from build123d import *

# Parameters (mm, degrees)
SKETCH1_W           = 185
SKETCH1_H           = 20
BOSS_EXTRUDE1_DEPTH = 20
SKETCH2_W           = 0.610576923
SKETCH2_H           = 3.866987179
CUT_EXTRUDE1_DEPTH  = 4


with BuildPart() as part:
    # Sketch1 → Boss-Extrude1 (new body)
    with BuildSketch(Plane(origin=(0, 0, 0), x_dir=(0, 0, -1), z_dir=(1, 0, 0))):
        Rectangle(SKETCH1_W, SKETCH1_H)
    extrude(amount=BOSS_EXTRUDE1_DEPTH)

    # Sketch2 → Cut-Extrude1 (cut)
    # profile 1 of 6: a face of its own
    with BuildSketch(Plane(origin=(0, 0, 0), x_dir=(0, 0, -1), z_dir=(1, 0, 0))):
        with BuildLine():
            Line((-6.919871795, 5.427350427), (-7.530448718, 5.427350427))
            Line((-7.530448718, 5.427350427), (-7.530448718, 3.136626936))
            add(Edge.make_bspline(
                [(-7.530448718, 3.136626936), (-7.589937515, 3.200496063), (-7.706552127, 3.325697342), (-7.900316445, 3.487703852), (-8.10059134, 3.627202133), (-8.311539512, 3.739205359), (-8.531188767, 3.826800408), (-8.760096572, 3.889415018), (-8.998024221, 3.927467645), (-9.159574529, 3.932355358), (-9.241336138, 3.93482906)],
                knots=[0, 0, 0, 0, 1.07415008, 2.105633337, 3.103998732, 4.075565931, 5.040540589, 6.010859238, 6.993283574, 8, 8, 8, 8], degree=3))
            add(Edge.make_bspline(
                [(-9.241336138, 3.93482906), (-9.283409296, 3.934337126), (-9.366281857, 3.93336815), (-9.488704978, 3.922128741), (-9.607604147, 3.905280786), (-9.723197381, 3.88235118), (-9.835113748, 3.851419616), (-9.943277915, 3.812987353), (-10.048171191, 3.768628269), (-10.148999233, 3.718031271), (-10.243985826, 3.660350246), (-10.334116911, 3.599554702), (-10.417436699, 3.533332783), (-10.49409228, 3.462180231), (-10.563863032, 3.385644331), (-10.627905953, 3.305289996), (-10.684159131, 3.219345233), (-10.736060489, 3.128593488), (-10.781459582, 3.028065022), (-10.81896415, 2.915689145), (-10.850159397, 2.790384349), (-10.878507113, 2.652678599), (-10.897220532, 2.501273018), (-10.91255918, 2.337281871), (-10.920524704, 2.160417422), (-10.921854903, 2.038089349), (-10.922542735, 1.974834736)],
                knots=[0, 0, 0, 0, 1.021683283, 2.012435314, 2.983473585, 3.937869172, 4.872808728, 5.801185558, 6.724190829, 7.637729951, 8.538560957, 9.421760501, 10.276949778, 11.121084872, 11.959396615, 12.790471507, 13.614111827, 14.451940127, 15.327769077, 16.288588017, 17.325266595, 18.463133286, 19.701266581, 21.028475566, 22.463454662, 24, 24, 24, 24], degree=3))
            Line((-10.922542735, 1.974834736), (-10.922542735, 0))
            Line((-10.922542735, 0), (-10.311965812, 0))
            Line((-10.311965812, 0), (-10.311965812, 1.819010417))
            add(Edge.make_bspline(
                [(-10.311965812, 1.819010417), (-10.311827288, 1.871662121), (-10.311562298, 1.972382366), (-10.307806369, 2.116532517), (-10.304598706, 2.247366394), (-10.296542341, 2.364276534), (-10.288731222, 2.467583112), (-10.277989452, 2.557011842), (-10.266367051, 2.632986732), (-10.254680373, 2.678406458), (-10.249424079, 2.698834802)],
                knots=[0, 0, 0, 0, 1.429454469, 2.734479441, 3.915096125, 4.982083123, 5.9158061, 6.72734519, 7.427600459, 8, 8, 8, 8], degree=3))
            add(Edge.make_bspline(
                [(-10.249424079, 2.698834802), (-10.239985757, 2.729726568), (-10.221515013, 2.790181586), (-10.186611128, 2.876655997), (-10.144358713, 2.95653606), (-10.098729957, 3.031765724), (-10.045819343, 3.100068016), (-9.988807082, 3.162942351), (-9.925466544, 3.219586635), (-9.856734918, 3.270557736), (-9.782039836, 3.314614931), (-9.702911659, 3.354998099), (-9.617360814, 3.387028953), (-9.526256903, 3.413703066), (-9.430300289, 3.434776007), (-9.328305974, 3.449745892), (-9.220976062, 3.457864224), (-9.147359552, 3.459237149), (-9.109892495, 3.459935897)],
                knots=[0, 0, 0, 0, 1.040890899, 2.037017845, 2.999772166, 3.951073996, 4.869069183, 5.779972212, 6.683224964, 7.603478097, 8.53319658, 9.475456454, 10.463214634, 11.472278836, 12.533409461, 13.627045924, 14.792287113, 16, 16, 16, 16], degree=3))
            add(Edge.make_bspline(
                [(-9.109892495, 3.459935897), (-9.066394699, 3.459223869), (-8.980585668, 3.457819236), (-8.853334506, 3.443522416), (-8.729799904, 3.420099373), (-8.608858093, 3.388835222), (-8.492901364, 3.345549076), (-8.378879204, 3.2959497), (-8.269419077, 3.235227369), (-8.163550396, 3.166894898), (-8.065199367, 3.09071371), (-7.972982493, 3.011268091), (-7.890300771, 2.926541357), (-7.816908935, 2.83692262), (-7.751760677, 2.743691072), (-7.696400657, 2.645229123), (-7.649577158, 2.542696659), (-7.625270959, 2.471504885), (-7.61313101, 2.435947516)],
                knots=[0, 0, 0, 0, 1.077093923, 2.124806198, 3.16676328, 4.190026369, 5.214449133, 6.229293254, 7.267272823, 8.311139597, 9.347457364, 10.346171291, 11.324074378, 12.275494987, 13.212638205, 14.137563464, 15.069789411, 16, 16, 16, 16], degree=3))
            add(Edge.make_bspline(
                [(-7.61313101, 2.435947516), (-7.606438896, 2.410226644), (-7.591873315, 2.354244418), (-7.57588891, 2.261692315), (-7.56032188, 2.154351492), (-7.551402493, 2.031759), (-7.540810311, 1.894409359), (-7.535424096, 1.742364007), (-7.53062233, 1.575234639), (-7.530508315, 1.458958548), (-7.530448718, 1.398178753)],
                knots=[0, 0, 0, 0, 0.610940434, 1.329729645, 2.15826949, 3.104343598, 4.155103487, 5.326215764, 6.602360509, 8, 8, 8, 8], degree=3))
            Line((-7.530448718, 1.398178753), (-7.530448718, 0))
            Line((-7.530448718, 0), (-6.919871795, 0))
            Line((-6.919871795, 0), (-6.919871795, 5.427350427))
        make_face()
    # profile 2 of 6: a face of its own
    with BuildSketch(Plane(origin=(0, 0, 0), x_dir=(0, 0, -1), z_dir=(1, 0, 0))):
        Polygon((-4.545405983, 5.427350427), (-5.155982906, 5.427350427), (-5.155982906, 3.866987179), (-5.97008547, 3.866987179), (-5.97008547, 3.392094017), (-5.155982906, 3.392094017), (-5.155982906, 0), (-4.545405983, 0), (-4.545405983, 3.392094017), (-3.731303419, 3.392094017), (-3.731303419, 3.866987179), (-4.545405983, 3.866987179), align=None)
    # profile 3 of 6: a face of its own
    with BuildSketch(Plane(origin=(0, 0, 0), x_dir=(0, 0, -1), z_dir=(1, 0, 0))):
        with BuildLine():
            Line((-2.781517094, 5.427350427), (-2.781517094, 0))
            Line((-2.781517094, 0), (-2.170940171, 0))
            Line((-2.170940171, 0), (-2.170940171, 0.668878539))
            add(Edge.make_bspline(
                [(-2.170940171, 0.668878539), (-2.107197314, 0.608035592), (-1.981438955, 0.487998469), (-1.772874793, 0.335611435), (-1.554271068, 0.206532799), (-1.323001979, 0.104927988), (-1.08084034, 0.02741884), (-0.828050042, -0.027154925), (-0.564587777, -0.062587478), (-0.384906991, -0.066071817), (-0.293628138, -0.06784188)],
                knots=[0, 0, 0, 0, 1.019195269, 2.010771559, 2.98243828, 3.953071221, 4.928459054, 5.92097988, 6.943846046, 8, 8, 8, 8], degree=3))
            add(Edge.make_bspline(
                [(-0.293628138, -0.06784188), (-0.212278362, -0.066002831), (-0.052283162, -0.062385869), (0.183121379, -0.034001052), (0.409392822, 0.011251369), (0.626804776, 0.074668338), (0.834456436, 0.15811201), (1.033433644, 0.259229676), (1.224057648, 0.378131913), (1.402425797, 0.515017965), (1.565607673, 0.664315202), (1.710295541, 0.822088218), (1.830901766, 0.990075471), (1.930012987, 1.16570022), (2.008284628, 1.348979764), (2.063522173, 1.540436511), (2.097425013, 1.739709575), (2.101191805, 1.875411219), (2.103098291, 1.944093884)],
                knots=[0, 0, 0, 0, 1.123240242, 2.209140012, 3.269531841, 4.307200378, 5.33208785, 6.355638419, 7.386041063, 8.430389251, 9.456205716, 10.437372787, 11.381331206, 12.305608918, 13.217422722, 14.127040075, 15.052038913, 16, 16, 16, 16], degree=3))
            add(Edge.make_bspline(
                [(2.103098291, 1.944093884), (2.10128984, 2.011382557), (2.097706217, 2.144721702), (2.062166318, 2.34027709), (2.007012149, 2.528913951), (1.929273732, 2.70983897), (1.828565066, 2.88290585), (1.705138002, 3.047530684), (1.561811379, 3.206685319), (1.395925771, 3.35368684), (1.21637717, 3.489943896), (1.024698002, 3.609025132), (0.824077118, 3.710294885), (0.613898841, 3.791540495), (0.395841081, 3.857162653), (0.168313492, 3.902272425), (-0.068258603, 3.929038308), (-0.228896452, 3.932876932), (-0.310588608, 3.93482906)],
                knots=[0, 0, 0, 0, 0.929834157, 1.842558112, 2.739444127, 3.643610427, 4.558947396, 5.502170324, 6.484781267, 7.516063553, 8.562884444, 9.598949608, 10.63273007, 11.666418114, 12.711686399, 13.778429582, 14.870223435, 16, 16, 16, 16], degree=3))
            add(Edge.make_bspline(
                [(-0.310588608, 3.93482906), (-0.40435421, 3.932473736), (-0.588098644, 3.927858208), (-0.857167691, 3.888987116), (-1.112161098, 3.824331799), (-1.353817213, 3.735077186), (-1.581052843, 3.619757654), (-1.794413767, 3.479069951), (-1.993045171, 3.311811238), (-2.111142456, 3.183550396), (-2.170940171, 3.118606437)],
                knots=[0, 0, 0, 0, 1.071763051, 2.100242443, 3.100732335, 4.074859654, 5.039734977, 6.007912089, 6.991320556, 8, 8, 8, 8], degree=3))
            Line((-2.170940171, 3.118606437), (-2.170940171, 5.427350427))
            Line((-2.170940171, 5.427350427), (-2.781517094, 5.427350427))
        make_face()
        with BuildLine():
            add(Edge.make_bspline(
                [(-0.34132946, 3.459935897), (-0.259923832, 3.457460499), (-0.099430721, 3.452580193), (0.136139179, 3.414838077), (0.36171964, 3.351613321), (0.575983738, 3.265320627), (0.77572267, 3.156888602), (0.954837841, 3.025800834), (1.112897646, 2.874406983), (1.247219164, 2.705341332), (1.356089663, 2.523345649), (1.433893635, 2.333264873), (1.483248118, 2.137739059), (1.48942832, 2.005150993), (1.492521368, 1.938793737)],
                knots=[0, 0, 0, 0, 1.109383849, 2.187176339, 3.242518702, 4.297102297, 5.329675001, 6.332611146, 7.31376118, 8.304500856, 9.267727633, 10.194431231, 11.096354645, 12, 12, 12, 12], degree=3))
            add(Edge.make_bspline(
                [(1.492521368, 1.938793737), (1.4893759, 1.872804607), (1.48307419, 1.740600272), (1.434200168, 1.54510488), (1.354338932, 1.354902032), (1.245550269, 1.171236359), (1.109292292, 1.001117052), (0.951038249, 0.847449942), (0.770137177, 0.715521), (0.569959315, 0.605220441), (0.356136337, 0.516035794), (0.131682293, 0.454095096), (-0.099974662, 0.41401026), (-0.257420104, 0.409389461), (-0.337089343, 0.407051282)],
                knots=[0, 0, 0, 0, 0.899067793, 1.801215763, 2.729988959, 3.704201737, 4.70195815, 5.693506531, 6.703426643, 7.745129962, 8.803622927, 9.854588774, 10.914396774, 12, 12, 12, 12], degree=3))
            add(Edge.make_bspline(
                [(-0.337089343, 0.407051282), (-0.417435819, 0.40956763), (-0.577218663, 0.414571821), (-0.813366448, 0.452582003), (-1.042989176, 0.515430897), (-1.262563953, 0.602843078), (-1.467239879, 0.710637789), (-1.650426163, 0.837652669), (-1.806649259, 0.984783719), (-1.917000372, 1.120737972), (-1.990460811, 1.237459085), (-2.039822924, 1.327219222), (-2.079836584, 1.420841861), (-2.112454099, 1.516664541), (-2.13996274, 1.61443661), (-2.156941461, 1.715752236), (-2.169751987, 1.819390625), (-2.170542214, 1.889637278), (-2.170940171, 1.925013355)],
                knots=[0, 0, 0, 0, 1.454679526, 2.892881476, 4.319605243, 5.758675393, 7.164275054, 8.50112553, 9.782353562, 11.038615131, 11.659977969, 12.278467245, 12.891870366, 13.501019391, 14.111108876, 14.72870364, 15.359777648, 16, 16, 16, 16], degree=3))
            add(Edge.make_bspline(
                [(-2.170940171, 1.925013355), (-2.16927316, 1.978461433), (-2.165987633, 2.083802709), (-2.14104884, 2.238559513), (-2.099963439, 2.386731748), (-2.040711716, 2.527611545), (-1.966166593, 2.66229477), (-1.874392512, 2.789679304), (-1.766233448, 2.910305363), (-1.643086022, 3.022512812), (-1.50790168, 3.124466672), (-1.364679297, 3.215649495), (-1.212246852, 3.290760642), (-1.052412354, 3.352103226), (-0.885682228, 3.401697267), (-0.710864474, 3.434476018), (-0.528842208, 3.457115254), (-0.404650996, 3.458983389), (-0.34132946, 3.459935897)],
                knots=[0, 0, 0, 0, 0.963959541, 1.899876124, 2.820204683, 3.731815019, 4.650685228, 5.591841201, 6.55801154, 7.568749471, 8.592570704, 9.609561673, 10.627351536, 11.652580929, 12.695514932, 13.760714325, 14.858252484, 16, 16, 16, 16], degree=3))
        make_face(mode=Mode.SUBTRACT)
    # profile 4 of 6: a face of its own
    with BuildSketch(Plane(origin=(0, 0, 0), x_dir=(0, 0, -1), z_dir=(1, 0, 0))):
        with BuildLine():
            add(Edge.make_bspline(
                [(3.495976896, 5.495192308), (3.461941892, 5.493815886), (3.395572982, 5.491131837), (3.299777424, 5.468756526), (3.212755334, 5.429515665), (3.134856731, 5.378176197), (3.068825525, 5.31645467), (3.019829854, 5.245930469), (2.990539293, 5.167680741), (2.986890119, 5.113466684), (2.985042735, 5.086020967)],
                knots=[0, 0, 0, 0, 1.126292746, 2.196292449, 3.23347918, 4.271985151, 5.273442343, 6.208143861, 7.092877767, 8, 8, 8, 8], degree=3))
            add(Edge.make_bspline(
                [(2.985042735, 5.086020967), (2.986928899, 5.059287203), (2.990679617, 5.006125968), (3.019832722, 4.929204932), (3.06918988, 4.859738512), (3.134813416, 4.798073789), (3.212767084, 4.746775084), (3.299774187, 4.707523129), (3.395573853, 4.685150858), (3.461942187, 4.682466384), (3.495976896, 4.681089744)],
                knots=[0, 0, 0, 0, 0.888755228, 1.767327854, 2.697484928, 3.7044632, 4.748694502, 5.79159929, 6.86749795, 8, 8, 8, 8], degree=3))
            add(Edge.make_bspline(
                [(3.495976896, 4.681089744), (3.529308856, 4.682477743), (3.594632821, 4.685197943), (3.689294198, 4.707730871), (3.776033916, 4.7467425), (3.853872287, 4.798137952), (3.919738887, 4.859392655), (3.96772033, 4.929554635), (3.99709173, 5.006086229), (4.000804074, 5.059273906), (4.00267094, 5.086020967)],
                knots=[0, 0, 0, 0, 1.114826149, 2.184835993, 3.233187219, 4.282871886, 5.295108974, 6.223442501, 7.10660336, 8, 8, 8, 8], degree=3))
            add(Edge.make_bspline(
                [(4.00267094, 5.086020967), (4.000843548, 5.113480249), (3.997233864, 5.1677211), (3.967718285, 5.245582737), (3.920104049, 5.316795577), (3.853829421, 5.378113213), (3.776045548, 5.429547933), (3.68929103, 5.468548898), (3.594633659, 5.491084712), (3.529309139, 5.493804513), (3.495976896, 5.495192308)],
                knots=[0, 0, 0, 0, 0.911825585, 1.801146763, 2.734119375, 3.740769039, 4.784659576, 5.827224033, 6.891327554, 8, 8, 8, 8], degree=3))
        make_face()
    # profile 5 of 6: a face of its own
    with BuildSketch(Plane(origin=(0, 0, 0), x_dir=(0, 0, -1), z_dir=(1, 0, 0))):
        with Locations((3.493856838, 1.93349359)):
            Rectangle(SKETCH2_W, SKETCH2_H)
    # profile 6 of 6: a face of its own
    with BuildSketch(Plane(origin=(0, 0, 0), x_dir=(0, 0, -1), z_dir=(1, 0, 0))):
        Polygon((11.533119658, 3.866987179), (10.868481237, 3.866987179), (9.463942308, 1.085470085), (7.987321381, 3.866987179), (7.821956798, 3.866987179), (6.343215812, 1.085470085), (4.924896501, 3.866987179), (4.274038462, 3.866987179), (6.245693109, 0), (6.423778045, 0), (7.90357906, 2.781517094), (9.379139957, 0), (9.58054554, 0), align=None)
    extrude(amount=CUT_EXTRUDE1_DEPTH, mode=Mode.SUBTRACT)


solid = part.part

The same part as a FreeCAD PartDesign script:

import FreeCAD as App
import Part
import Sketcher

V = App.Vector
Q = App.Units.Quantity


def add_polygon(sketch, points):
    """Adds a closed chain of lines whose ends are joined by coincident constraints."""
    first, n = sketch.GeometryCount, len(points)
    for a, b in zip(points, points[1:] + points[:1]):
        sketch.addGeometry(Part.LineSegment(App.Vector(*a, 0), App.Vector(*b, 0)), False)
    for i in range(n):
        sketch.addConstraint(Sketcher.Constraint("Coincident", first + i, 2, first + (i + 1) % n, 1))

doc = App.newDocument("Part")
params = doc.addObject("Spreadsheet::Sheet", "Params")
for row, (alias, value) in enumerate([
    ("sketch1_width", "20 mm"),
    ("sketch1_height", "185 mm"),
    ("pad1_length", "20 mm"),
    ("pocket1_length", "4 mm"),
], start=1):
    params.set(f"A{row}", alias)
    params.set(f"B{row}", "=" + value)
    params.setAlias(f"B{row}", alias)

body = doc.addObject("PartDesign::Body", "Body")

sketch1 = body.newObject("Sketcher::SketchObject", "Sketch")
sketch1.AttachmentSupport = (doc.getObject("YZ_Plane"), [""])
sketch1.MapMode = "FlatFace"
add_polygon(sketch1, [(10, 92.5), (-10, 92.5), (-10, -92.5), (10, -92.5)])
sketch1.addConstraint(Sketcher.Constraint("Horizontal", 0))
sketch1.addConstraint(Sketcher.Constraint("Vertical", 1))
sketch1.addConstraint(Sketcher.Constraint("Horizontal", 2))
sketch1.addConstraint(Sketcher.Constraint("Vertical", 3))
sketch1.addConstraint(Sketcher.Constraint("Symmetric", 0, 2, 2, 2, -1, 1))
sketch1.addConstraint(Sketcher.Constraint("DistanceX", 0, 2, 0, 1, Q("20 mm")))
sketch1.addConstraint(Sketcher.Constraint("DistanceY", 1, 2, 1, 1, Q("185 mm")))
sketch1.setExpression("Constraints[9]", "Params.sketch1_width")
sketch1.setExpression("Constraints[10]", "Params.sketch1_height")
pad1 = body.newObject("PartDesign::Pad", "Pad")
pad1.Profile = sketch1
pad1.setExpression("Length", "Params.pad1_length")

sketch2 = body.newObject("Sketcher::SketchObject", "Sketch001")
sketch2.AttachmentSupport = (doc.getObject("YZ_Plane"), [""])
sketch2.MapMode = "FlatFace"
sketch2.addGeometry(Part.LineSegment(V(5.42735, 6.919872, 0), V(5.42735, 7.530449, 0)), False)
sketch2.addGeometry(Part.LineSegment(V(5.42735, 7.530449, 0), V(3.136627, 7.530449, 0)), False)
sketch2.addGeometry(Part.BSplineCurve([V(3.136627, 7.530449, 0), V(3.200496, 7.589938, 0), V(3.325697, 7.706552, 0), V(3.487704, 7.900316, 0), V(3.627202, 8.100591, 0), V(3.739205, 8.31154, 0), V(3.8268, 8.531189, 0), V(3.889415, 8.760097, 0), V(3.927468, 8.998024, 0), V(3.932355, 9.159575, 0), V(3.934829, 9.241336, 0)], [4, 1, 1, 1, 1, 1, 1, 1, 4], [0, 1.07415008, 2.105633337, 3.103998732, 4.075565931, 5.040540589, 6.010859238, 6.993283574, 8], False, 3, [1, 1, 1, 1, 1, 1, 1, 1, 1, 1, 1], False), False)
sketch2.addGeometry(Part.BSplineCurve([V(3.934829, 9.241336, 0), V(3.934337, 9.283409, 0), V(3.933368, 9.366282, 0), V(3.922129, 9.488705, 0), V(3.905281, 9.607604, 0), V(3.882351, 9.723197, 0), V(3.85142, 9.835114, 0), V(3.812987, 9.943278, 0), V(3.768628, 10.048171, 0), V(3.718031, 10.148999, 0), V(3.66035, 10.243986, 0), V(3.599555, 10.334117, 0), V(3.533333, 10.417437, 0), V(3.46218, 10.494092, 0), V(3.385644, 10.563863, 0), V(3.30529, 10.627906, 0), V(3.219345, 10.684159, 0), V(3.128593, 10.73606, 0), V(3.028065, 10.78146, 0), V(2.915689, 10.818964, 0), V(2.790384, 10.850159, 0), V(2.652679, 10.878507, 0), V(2.501273, 10.897221, 0), V(2.337282, 10.912559, 0), V(2.160417, 10.920525, 0), V(2.038089, 10.921855, 0), V(1.974835, 10.922543, 0)], [4, 1, 1, 1, 1, 1, 1, 1, 1, 1, 1, 1, 1, 1, 1, 1, 1, 1, 1, 1, 1, 1, 1, 1, 4], [0, 1.021683283, 2.012435314, 2.983473585, 3.937869172, 4.872808728, 5.801185558, 6.724190829, 7.637729951, 8.538560957, 9.421760501, 10.276949778, 11.121084872, 11.959396615, 12.790471507, 13.614111827, 14.451940127, 15.327769077, 16.288588017, 17.325266595, 18.463133286, 19.701266581, 21.028475566, 22.463454662, 24], False, 3, [1, 1, 1, 1, 1, 1, 1, 1, 1, 1, 1, 1, 1, 1, 1, 1, 1, 1, 1, 1, 1, 1, 1, 1, 1, 1, 1], False), False)
sketch2.addGeometry(Part.LineSegment(V(1.974835, 10.922543, 0), V(0, 10.922543, 0)), False)
sketch2.addGeometry(Part.LineSegment(V(0, 10.922543, 0), V(0, 10.311966, 0)), False)
sketch2.addGeometry(Part.LineSegment(V(0, 10.311966, 0), V(1.81901, 10.311966, 0)), False)
sketch2.addGeometry(Part.BSplineCurve([V(1.81901, 10.311966, 0), V(1.871662, 10.311827, 0), V(1.972382, 10.311562, 0), V(2.116533, 10.307806, 0), V(2.247366, 10.304599, 0), V(2.364277, 10.296542, 0), V(2.467583, 10.288731, 0), V(2.557012, 10.277989, 0), V(2.632987, 10.266367, 0), V(2.678406, 10.25468, 0), V(2.698835, 10.249424, 0)], [4, 1, 1, 1, 1, 1, 1, 1, 4], [0, 1.429454469, 2.734479441, 3.915096125, 4.982083123, 5.9158061, 6.72734519, 7.427600459, 8], False, 3, [1, 1, 1, 1, 1, 1, 1, 1, 1, 1, 1], False), False)
sketch2.addGeometry(Part.BSplineCurve([V(2.698835, 10.249424, 0), V(2.729727, 10.239986, 0), V(2.790182, 10.221515, 0), V(2.876656, 10.186611, 0), V(2.956536, 10.144359, 0), V(3.031766, 10.09873, 0), V(3.100068, 10.045819, 0), V(3.162942, 9.988807, 0), V(3.219587, 9.925467, 0), V(3.270558, 9.856735, 0), V(3.314615, 9.78204, 0), V(3.354998, 9.702912, 0), V(3.387029, 9.617361, 0), V(3.413703, 9.526257, 0), V(3.434776, 9.4303, 0), V(3.449746, 9.328306, 0), V(3.457864, 9.220976, 0), V(3.459237, 9.14736, 0), V(3.459936, 9.109892, 0)], [4, 1, 1, 1, 1, 1, 1, 1, 1, 1, 1, 1, 1, 1, 1, 1, 4], [0, 1.040890899, 2.037017845, 2.999772166, 3.951073996, 4.869069183, 5.779972212, 6.683224964, 7.603478097, 8.53319658, 9.475456454, 10.463214634, 11.472278836, 12.533409461, 13.627045924, 14.792287113, 16], False, 3, [1, 1, 1, 1, 1, 1, 1, 1, 1, 1, 1, 1, 1, 1, 1, 1, 1, 1, 1], False), False)
sketch2.addGeometry(Part.BSplineCurve([V(3.459936, 9.109892, 0), V(3.459224, 9.066395, 0), V(3.457819, 8.980586, 0), V(3.443522, 8.853335, 0), V(3.420099, 8.7298, 0), V(3.388835, 8.608858, 0), V(3.345549, 8.492901, 0), V(3.29595, 8.378879, 0), V(3.235227, 8.269419, 0), V(3.166895, 8.16355, 0), V(3.090714, 8.065199, 0), V(3.011268, 7.972982, 0), V(2.926541, 7.890301, 0), V(2.836923, 7.816909, 0), V(2.743691, 7.751761, 0), V(2.645229, 7.696401, 0), V(2.542697, 7.649577, 0), V(2.471505, 7.625271, 0), V(2.435948, 7.613131, 0)], [4, 1, 1, 1, 1, 1, 1, 1, 1, 1, 1, 1, 1, 1, 1, 1, 4], [0, 1.077093923, 2.124806198, 3.16676328, 4.190026369, 5.214449133, 6.229293254, 7.267272823, 8.311139597, 9.347457364, 10.346171291, 11.324074378, 12.275494987, 13.212638205, 14.137563464, 15.069789411, 16], False, 3, [1, 1, 1, 1, 1, 1, 1, 1, 1, 1, 1, 1, 1, 1, 1, 1, 1, 1, 1], False), False)
sketch2.addGeometry(Part.BSplineCurve([V(2.435948, 7.613131, 0), V(2.410227, 7.606439, 0), V(2.354244, 7.591873, 0), V(2.261692, 7.575889, 0), V(2.154351, 7.560322, 0), V(2.031759, 7.551402, 0), V(1.894409, 7.54081, 0), V(1.742364, 7.535424, 0), V(1.575235, 7.530622, 0), V(1.458959, 7.530508, 0), V(1.398179, 7.530449, 0)], [4, 1, 1, 1, 1, 1, 1, 1, 4], [0, 0.610940434, 1.329729645, 2.15826949, 3.104343598, 4.155103487, 5.326215764, 6.602360509, 8], False, 3, [1, 1, 1, 1, 1, 1, 1, 1, 1, 1, 1], False), False)
sketch2.addGeometry(Part.LineSegment(V(1.398179, 7.530449, 0), V(0, 7.530449, 0)), False)
sketch2.addGeometry(Part.LineSegment(V(0, 7.530449, 0), V(0, 6.919872, 0)), False)
sketch2.addGeometry(Part.LineSegment(V(0, 6.919872, 0), V(5.42735, 6.919872, 0)), False)
add_polygon(sketch2, [(5.42735, 4.545406), (5.42735, 5.155983), (3.866987, 5.155983), (3.866987, 5.970085), (3.392094, 5.970085), (3.392094, 5.155983), (0, 5.155983), (0, 4.545406), (3.392094, 4.545406), (3.392094, 3.731303), (3.866987, 3.731303), (3.866987, 4.545406)])
sketch2.addGeometry(Part.LineSegment(V(5.42735, 2.781517, 0), V(0, 2.781517, 0)), False)
sketch2.addGeometry(Part.LineSegment(V(0, 2.781517, 0), V(0, 2.17094, 0)), False)
sketch2.addGeometry(Part.LineSegment(V(0, 2.17094, 0), V(0.668879, 2.17094, 0)), False)
sketch2.addGeometry(Part.BSplineCurve([V(0.668879, 2.17094, 0), V(0.608036, 2.107197, 0), V(0.487998, 1.981439, 0), V(0.335611, 1.772875, 0), V(0.206533, 1.554271, 0), V(0.104928, 1.323002, 0), V(0.027419, 1.08084, 0), V(-0.027155, 0.82805, 0), V(-0.062587, 0.564588, 0), V(-0.066072, 0.384907, 0), V(-0.067842, 0.293628, 0)], [4, 1, 1, 1, 1, 1, 1, 1, 4], [0, 1.019195269, 2.010771559, 2.98243828, 3.953071221, 4.928459054, 5.92097988, 6.943846046, 8], False, 3, [1, 1, 1, 1, 1, 1, 1, 1, 1, 1, 1], False), False)
sketch2.addGeometry(Part.BSplineCurve([V(-0.067842, 0.293628, 0), V(-0.066003, 0.212278, 0), V(-0.062386, 0.052283, 0), V(-0.034001, -0.183121, 0), V(0.011251, -0.409393, 0), V(0.074668, -0.626805, 0), V(0.158112, -0.834456, 0), V(0.25923, -1.033434, 0), V(0.378132, -1.224058, 0), V(0.515018, -1.402426, 0), V(0.664315, -1.565608, 0), V(0.822088, -1.710296, 0), V(0.990075, -1.830902, 0), V(1.1657, -1.930013, 0), V(1.34898, -2.008285, 0), V(1.540437, -2.063522, 0), V(1.73971, -2.097425, 0), V(1.875411, -2.101192, 0), V(1.944094, -2.103098, 0)], [4, 1, 1, 1, 1, 1, 1, 1, 1, 1, 1, 1, 1, 1, 1, 1, 4], [0, 1.123240242, 2.209140012, 3.269531841, 4.307200378, 5.33208785, 6.355638419, 7.386041063, 8.430389251, 9.456205716, 10.437372787, 11.381331206, 12.305608918, 13.217422722, 14.127040075, 15.052038913, 16], False, 3, [1, 1, 1, 1, 1, 1, 1, 1, 1, 1, 1, 1, 1, 1, 1, 1, 1, 1, 1], False), False)
sketch2.addGeometry(Part.BSplineCurve([V(1.944094, -2.103098, 0), V(2.011383, -2.10129, 0), V(2.144722, -2.097706, 0), V(2.340277, -2.062166, 0), V(2.528914, -2.007012, 0), V(2.709839, -1.929274, 0), V(2.882906, -1.828565, 0), V(3.047531, -1.705138, 0), V(3.206685, -1.561811, 0), V(3.353687, -1.395926, 0), V(3.489944, -1.216377, 0), V(3.609025, -1.024698, 0), V(3.710295, -0.824077, 0), V(3.79154, -0.613899, 0), V(3.857163, -0.395841, 0), V(3.902272, -0.168313, 0), V(3.929038, 0.068259, 0), V(3.932877, 0.228896, 0), V(3.934829, 0.310589, 0)], [4, 1, 1, 1, 1, 1, 1, 1, 1, 1, 1, 1, 1, 1, 1, 1, 4], [0, 0.929834157, 1.842558112, 2.739444127, 3.643610427, 4.558947396, 5.502170324, 6.484781267, 7.516063553, 8.562884444, 9.598949608, 10.63273007, 11.666418114, 12.711686399, 13.778429582, 14.870223435, 16], False, 3, [1, 1, 1, 1, 1, 1, 1, 1, 1, 1, 1, 1, 1, 1, 1, 1, 1, 1, 1], False), False)
sketch2.addGeometry(Part.BSplineCurve([V(3.934829, 0.310589, 0), V(3.932474, 0.404354, 0), V(3.927858, 0.588099, 0), V(3.888987, 0.857168, 0), V(3.824332, 1.112161, 0), V(3.735077, 1.353817, 0), V(3.619758, 1.581053, 0), V(3.47907, 1.794414, 0), V(3.311811, 1.993045, 0), V(3.18355, 2.111142, 0), V(3.118606, 2.17094, 0)], [4, 1, 1, 1, 1, 1, 1, 1, 4], [0, 1.071763051, 2.100242443, 3.100732335, 4.074859654, 5.039734977, 6.007912089, 6.991320556, 8], False, 3, [1, 1, 1, 1, 1, 1, 1, 1, 1, 1, 1], False), False)
sketch2.addGeometry(Part.LineSegment(V(3.118606, 2.17094, 0), V(5.42735, 2.17094, 0)), False)
sketch2.addGeometry(Part.LineSegment(V(5.42735, 2.17094, 0), V(5.42735, 2.781517, 0)), False)
sketch2.addGeometry(Part.BSplineCurve([V(1.925013, 2.17094, 0), V(1.978461, 2.169273, 0), V(2.083803, 2.165988, 0), V(2.23856, 2.141049, 0), V(2.386732, 2.099963, 0), V(2.527612, 2.040712, 0), V(2.662295, 1.966167, 0), V(2.789679, 1.874393, 0), V(2.910305, 1.766233, 0), V(3.022513, 1.643086, 0), V(3.124467, 1.507902, 0), V(3.215649, 1.364679, 0), V(3.290761, 1.212247, 0), V(3.352103, 1.052412, 0), V(3.401697, 0.885682, 0), V(3.434476, 0.710864, 0), V(3.457115, 0.528842, 0), V(3.458983, 0.404651, 0), V(3.459936, 0.341329, 0)], [4, 1, 1, 1, 1, 1, 1, 1, 1, 1, 1, 1, 1, 1, 1, 1, 4], [0, 0.963959541, 1.899876124, 2.820204683, 3.731815019, 4.650685228, 5.591841201, 6.55801154, 7.568749471, 8.592570704, 9.609561673, 10.627351536, 11.652580929, 12.695514932, 13.760714325, 14.858252484, 16], False, 3, [1, 1, 1, 1, 1, 1, 1, 1, 1, 1, 1, 1, 1, 1, 1, 1, 1, 1, 1], False), False)
sketch2.addGeometry(Part.BSplineCurve([V(3.459936, 0.341329, 0), V(3.45746, 0.259924, 0), V(3.45258, 0.099431, 0), V(3.414838, -0.136139, 0), V(3.351613, -0.36172, 0), V(3.265321, -0.575984, 0), V(3.156889, -0.775723, 0), V(3.025801, -0.954838, 0), V(2.874407, -1.112898, 0), V(2.705341, -1.247219, 0), V(2.523346, -1.35609, 0), V(2.333265, -1.433894, 0), V(2.137739, -1.483248, 0), V(2.005151, -1.489428, 0), V(1.938794, -1.492521, 0)], [4, 1, 1, 1, 1, 1, 1, 1, 1, 1, 1, 1, 4], [0, 1.109383849, 2.187176339, 3.242518702, 4.297102297, 5.329675001, 6.332611146, 7.31376118, 8.304500856, 9.267727633, 10.194431231, 11.096354645, 12], False, 3, [1, 1, 1, 1, 1, 1, 1, 1, 1, 1, 1, 1, 1, 1, 1], False), False)
sketch2.addGeometry(Part.BSplineCurve([V(1.938794, -1.492521, 0), V(1.872805, -1.489376, 0), V(1.7406, -1.483074, 0), V(1.545105, -1.4342, 0), V(1.354902, -1.354339, 0), V(1.171236, -1.24555, 0), V(1.001117, -1.109292, 0), V(0.84745, -0.951038, 0), V(0.715521, -0.770137, 0), V(0.60522, -0.569959, 0), V(0.516036, -0.356136, 0), V(0.454095, -0.131682, 0), V(0.41401, 0.099975, 0), V(0.409389, 0.25742, 0), V(0.407051, 0.337089, 0)], [4, 1, 1, 1, 1, 1, 1, 1, 1, 1, 1, 1, 4], [0, 0.899067793, 1.801215763, 2.729988959, 3.704201737, 4.70195815, 5.693506531, 6.703426643, 7.745129962, 8.803622927, 9.854588774, 10.914396774, 12], False, 3, [1, 1, 1, 1, 1, 1, 1, 1, 1, 1, 1, 1, 1, 1, 1], False), False)
sketch2.addGeometry(Part.BSplineCurve([V(0.407051, 0.337089, 0), V(0.409568, 0.417436, 0), V(0.414572, 0.577219, 0), V(0.452582, 0.813366, 0), V(0.515431, 1.042989, 0), V(0.602843, 1.262564, 0), V(0.710638, 1.46724, 0), V(0.837653, 1.650426, 0), V(0.984784, 1.806649, 0), V(1.120738, 1.917, 0), V(1.237459, 1.990461, 0), V(1.327219, 2.039823, 0), V(1.420842, 2.079837, 0), V(1.516665, 2.112454, 0), V(1.614437, 2.139963, 0), V(1.715752, 2.156941, 0), V(1.819391, 2.169752, 0), V(1.889637, 2.170542, 0), V(1.925013, 2.17094, 0)], [4, 1, 1, 1, 1, 1, 1, 1, 1, 1, 1, 1, 1, 1, 1, 1, 4], [0, 1.454679526, 2.892881476, 4.319605243, 5.758675393, 7.164275054, 8.50112553, 9.782353562, 11.038615131, 11.659977969, 12.278467245, 12.891870366, 13.501019391, 14.111108876, 14.72870364, 15.359777648, 16], False, 3, [1, 1, 1, 1, 1, 1, 1, 1, 1, 1, 1, 1, 1, 1, 1, 1, 1, 1, 1], False), False)
sketch2.addGeometry(Part.BSplineCurve([V(5.495192, -3.495977, 0), V(5.493816, -3.461942, 0), V(5.491132, -3.395573, 0), V(5.468757, -3.299777, 0), V(5.429516, -3.212755, 0), V(5.378176, -3.134857, 0), V(5.316455, -3.068826, 0), V(5.24593, -3.01983, 0), V(5.167681, -2.990539, 0), V(5.113467, -2.98689, 0), V(5.086021, -2.985043, 0)], [4, 1, 1, 1, 1, 1, 1, 1, 4], [0, 1.126292746, 2.196292449, 3.23347918, 4.271985151, 5.273442343, 6.208143861, 7.092877767, 8], False, 3, [1, 1, 1, 1, 1, 1, 1, 1, 1, 1, 1], False), False)
sketch2.addGeometry(Part.BSplineCurve([V(5.086021, -2.985043, 0), V(5.059287, -2.986929, 0), V(5.006126, -2.99068, 0), V(4.929205, -3.019833, 0), V(4.859739, -3.06919, 0), V(4.798074, -3.134813, 0), V(4.746775, -3.212767, 0), V(4.707523, -3.299774, 0), V(4.685151, -3.395574, 0), V(4.682466, -3.461942, 0), V(4.68109, -3.495977, 0)], [4, 1, 1, 1, 1, 1, 1, 1, 4], [0, 0.888755228, 1.767327854, 2.697484928, 3.7044632, 4.748694502, 5.79159929, 6.86749795, 8], False, 3, [1, 1, 1, 1, 1, 1, 1, 1, 1, 1, 1], False), False)
sketch2.addGeometry(Part.BSplineCurve([V(4.68109, -3.495977, 0), V(4.682478, -3.529309, 0), V(4.685198, -3.594633, 0), V(4.707731, -3.689294, 0), V(4.746742, -3.776034, 0), V(4.798138, -3.853872, 0), V(4.859393, -3.919739, 0), V(4.929555, -3.96772, 0), V(5.006086, -3.997092, 0), V(5.059274, -4.000804, 0), V(5.086021, -4.002671, 0)], [4, 1, 1, 1, 1, 1, 1, 1, 4], [0, 1.114826149, 2.184835993, 3.233187219, 4.282871886, 5.295108974, 6.223442501, 7.10660336, 8], False, 3, [1, 1, 1, 1, 1, 1, 1, 1, 1, 1, 1], False), False)
sketch2.addGeometry(Part.BSplineCurve([V(5.086021, -4.002671, 0), V(5.11348, -4.000844, 0), V(5.167721, -3.997234, 0), V(5.245583, -3.967718, 0), V(5.316796, -3.920104, 0), V(5.378113, -3.853829, 0), V(5.429548, -3.776046, 0), V(5.468549, -3.689291, 0), V(5.491085, -3.594634, 0), V(5.493805, -3.529309, 0), V(5.495192, -3.495977, 0)], [4, 1, 1, 1, 1, 1, 1, 1, 4], [0, 0.911825585, 1.801146763, 2.734119375, 3.740769039, 4.784659576, 5.827224033, 6.891327554, 8], False, 3, [1, 1, 1, 1, 1, 1, 1, 1, 1, 1, 1], False), False)
add_polygon(sketch2, [(3.866987, -3.188568), (0, -3.188568), (0, -3.799145), (3.866987, -3.799145)])
add_polygon(sketch2, [(3.866987, -11.53312), (3.866987, -10.868481), (1.08547, -9.463942), (3.866987, -7.987321), (3.866987, -7.821957), (1.08547, -6.343216), (3.866987, -4.924897), (3.866987, -4.274038), (0, -6.245693), (0, -6.423778), (2.781517, -7.903579), (0, -9.37914), (0, -9.580546)])
sketch2.addConstraint(Sketcher.Constraint("Block", 2))
sketch2.addConstraint(Sketcher.Constraint("Block", 3))
sketch2.addConstraint(Sketcher.Constraint("Block", 7))
sketch2.addConstraint(Sketcher.Constraint("Block", 8))
sketch2.addConstraint(Sketcher.Constraint("Block", 9))
sketch2.addConstraint(Sketcher.Constraint("Block", 10))
sketch2.addConstraint(Sketcher.Constraint("Block", 29))
sketch2.addConstraint(Sketcher.Constraint("Block", 30))
sketch2.addConstraint(Sketcher.Constraint("Block", 31))
sketch2.addConstraint(Sketcher.Constraint("Block", 32))
sketch2.addConstraint(Sketcher.Constraint("Block", 35))
sketch2.addConstraint(Sketcher.Constraint("Block", 36))
sketch2.addConstraint(Sketcher.Constraint("Block", 37))
sketch2.addConstraint(Sketcher.Constraint("Block", 38))
sketch2.addConstraint(Sketcher.Constraint("Block", 39))
sketch2.addConstraint(Sketcher.Constraint("Block", 40))
sketch2.addConstraint(Sketcher.Constraint("Block", 41))
sketch2.addConstraint(Sketcher.Constraint("Block", 42))
sketch2.addConstraint(Sketcher.Constraint("Coincident", 0, 2, 1, 1))
sketch2.addConstraint(Sketcher.Constraint("Coincident", 1, 2, 2, 1))
sketch2.addConstraint(Sketcher.Constraint("Coincident", 3, 2, 4, 1))
sketch2.addConstraint(Sketcher.Constraint("Coincident", 4, 2, 5, 1))
sketch2.addConstraint(Sketcher.Constraint("Coincident", 5, 2, 6, 1))
sketch2.addConstraint(Sketcher.Constraint("Coincident", 6, 2, 7, 1))
sketch2.addConstraint(Sketcher.Constraint("Coincident", 10, 2, 11, 1))
sketch2.addConstraint(Sketcher.Constraint("Coincident", 11, 2, 12, 1))
sketch2.addConstraint(Sketcher.Constraint("Coincident", 12, 2, 13, 1))
sketch2.addConstraint(Sketcher.Constraint("Coincident", 13, 2, 0, 1))
sketch2.addConstraint(Sketcher.Constraint("Coincident", 26, 2, 27, 1))
sketch2.addConstraint(Sketcher.Constraint("Coincident", 27, 2, 28, 1))
sketch2.addConstraint(Sketcher.Constraint("Coincident", 28, 2, 29, 1))
sketch2.addConstraint(Sketcher.Constraint("Coincident", 32, 2, 33, 1))
sketch2.addConstraint(Sketcher.Constraint("Coincident", 33, 2, 34, 1))
sketch2.addConstraint(Sketcher.Constraint("Coincident", 34, 2, 26, 1))
sketch2.addConstraint(Sketcher.Constraint("Vertical", 0))
sketch2.addConstraint(Sketcher.Constraint("Horizontal", 1))
sketch2.addConstraint(Sketcher.Constraint("Horizontal", 4))
sketch2.addConstraint(Sketcher.Constraint("Vertical", 5))
sketch2.addConstraint(Sketcher.Constraint("Horizontal", 6))
sketch2.addConstraint(Sketcher.Constraint("Horizontal", 11))
sketch2.addConstraint(Sketcher.Constraint("Vertical", 12))
sketch2.addConstraint(Sketcher.Constraint("Horizontal", 13))
sketch2.addConstraint(Sketcher.Constraint("Vertical", 14))
sketch2.addConstraint(Sketcher.Constraint("Horizontal", 15))
sketch2.addConstraint(Sketcher.Constraint("Vertical", 16))
sketch2.addConstraint(Sketcher.Constraint("Horizontal", 17))
sketch2.addConstraint(Sketcher.Constraint("Vertical", 18))
sketch2.addConstraint(Sketcher.Constraint("Horizontal", 19))
sketch2.addConstraint(Sketcher.Constraint("Vertical", 20))
sketch2.addConstraint(Sketcher.Constraint("Horizontal", 21))
sketch2.addConstraint(Sketcher.Constraint("Vertical", 22))
sketch2.addConstraint(Sketcher.Constraint("Horizontal", 23))
sketch2.addConstraint(Sketcher.Constraint("Vertical", 24))
sketch2.addConstraint(Sketcher.Constraint("Horizontal", 25))
sketch2.addConstraint(Sketcher.Constraint("Horizontal", 26))
sketch2.addConstraint(Sketcher.Constraint("Vertical", 27))
sketch2.addConstraint(Sketcher.Constraint("Horizontal", 28))
sketch2.addConstraint(Sketcher.Constraint("Horizontal", 33))
sketch2.addConstraint(Sketcher.Constraint("Vertical", 34))
sketch2.addConstraint(Sketcher.Constraint("Horizontal", 43))
sketch2.addConstraint(Sketcher.Constraint("Vertical", 44))
sketch2.addConstraint(Sketcher.Constraint("Horizontal", 45))
sketch2.addConstraint(Sketcher.Constraint("Vertical", 46))
sketch2.addConstraint(Sketcher.Constraint("Vertical", 47))
sketch2.addConstraint(Sketcher.Constraint("Vertical", 50))
sketch2.addConstraint(Sketcher.Constraint("Vertical", 53))
sketch2.addConstraint(Sketcher.Constraint("Vertical", 55))
sketch2.addConstraint(Sketcher.Constraint("Vertical", 58))
sketch2.addConstraint(Sketcher.Constraint("PointOnObject", 4, 2, -2))
sketch2.addConstraint(Sketcher.Constraint("PointOnObject", 11, 2, -2))
sketch2.addConstraint(Sketcher.Constraint("PointOnObject", 19, 2, -2))
sketch2.addConstraint(Sketcher.Constraint("PointOnObject", 26, 2, -2))
sketch2.addConstraint(Sketcher.Constraint("PointOnObject", 43, 2, -2))
sketch2.addConstraint(Sketcher.Constraint("PointOnObject", 54, 2, -2))
sketch2.addConstraint(Sketcher.Constraint("PointOnObject", 57, 2, -2))
sketch2.addConstraint(Sketcher.Constraint("DistanceX", 13, 1, 13, 2, Q("5.42735 mm")))
sketch2.addConstraint(Sketcher.Constraint("DistanceX", 26, 2, 26, 1, Q("5.42735 mm")))
sketch2.addConstraint(Sketcher.Constraint("DistanceY", 47, 1, 47, 2, Q("0.664638 mm")))
sketch2.addConstraint(Sketcher.Constraint("DistanceY", 53, 1, 53, 2, Q("0.650858 mm")))
sketch2.addConstraint(Sketcher.Constraint("DistanceY", 56, 2, 55, 2, Q("1.479801 mm")))
sketch2.addConstraint(Sketcher.Constraint("DistanceY", 59, 2, 49, 2, Q("3.545798 mm")))
sketch2.addConstraint(Sketcher.Constraint("Distance", 51, Q("3.150161 mm")))
sketch2.addConstraint(Sketcher.Constraint("Distance", 56, Q("3.150658 mm")))
sketch2.addConstraint(Sketcher.Constraint("Distance", 57, Q("3.148669 mm")))
sketch2.addConstraint(Sketcher.Constraint("Distance", 59, Q("4.33199 mm")))
sketch2.addConstraint(Sketcher.Constraint("DistanceX", 15, 2, 15, 1, Q("1.560363 mm")))
sketch2.addConstraint(Sketcher.Constraint("DistanceX", 17, 2, 17, 1, Q("0.474893 mm")))
sketch2.addConstraint(Sketcher.Constraint("DistanceX", 19, 2, 19, 1, Q("3.392094 mm")))
sketch2.addConstraint(Sketcher.Constraint("DistanceX", 21, 1, 21, 2, Q("3.392094 mm")))
sketch2.addConstraint(Sketcher.Constraint("DistanceX", 23, 1, 23, 2, Q("0.474893 mm")))
sketch2.addConstraint(Sketcher.Constraint("DistanceX", 43, 2, 43, 1, Q("3.866987 mm")))
sketch2.addConstraint(Sketcher.Constraint("DistanceY", 0, 1, 0, 2, Q("0.610577 mm")))
sketch2.addConstraint(Sketcher.Constraint("DistanceY", 14, 1, 14, 2, Q("0.610577 mm")))
sketch2.addConstraint(Sketcher.Constraint("DistanceY", 16, 1, 16, 2, Q("0.814103 mm")))
sketch2.addConstraint(Sketcher.Constraint("DistanceY", 18, 2, 18, 1, Q("0.814103 mm")))
sketch2.addConstraint(Sketcher.Constraint("DistanceY", 20, 2, 20, 1, Q("0.610577 mm")))
sketch2.addConstraint(Sketcher.Constraint("DistanceY", 22, 2, 22, 1, Q("0.814103 mm")))
sketch2.addConstraint(Sketcher.Constraint("DistanceY", 27, 2, 27, 1, Q("0.610577 mm")))
sketch2.addConstraint(Sketcher.Constraint("DistanceY", 44, 2, 44, 1, Q("0.610577 mm")))
sketch2.addConstraint(Sketcher.Constraint("DistanceY", 50, 1, 50, 2, Q("0.165365 mm")))
sketch2.addConstraint(Sketcher.Constraint("DistanceY", 55, 2, 55, 1, Q("0.178085 mm")))
sketch2.addConstraint(Sketcher.Constraint("DistanceY", 58, 2, 58, 1, Q("0.201406 mm")))
sketch2.addConstraint(Sketcher.Constraint("DistanceY", 43, 2, -1, 1, Q("3.188568 mm")))
sketch2.addConstraint(Sketcher.Constraint("DistanceY", 47, 2, -1, 1, Q("10.868481 mm")))
sketch2.addConstraint(Sketcher.Constraint("DistanceX", -1, 1, 48, 2, Q("1.08547 mm")))
sketch2.addConstraint(Sketcher.Constraint("DistanceX", -1, 1, 51, 2, Q("1.08547 mm")))
sketch2.addConstraint(Sketcher.Constraint("DistanceY", 53, 2, -1, 1, Q("4.274038 mm")))
sketch2.addConstraint(Sketcher.Constraint("DistanceY", 55, 2, -1, 1, Q("6.423778 mm")))
sketch2.addConstraint(Sketcher.Constraint("DistanceY", 14, 2, 13, 2, Q("1.763889 mm")))
sketch2.addConstraint(Sketcher.Constraint("DistanceY", 47, 2, 48, 2, Q("1.404539 mm")))
sketch2.addConstraint(Sketcher.Constraint("DistanceY", 51, 2, 44, 2, Q("2.544071 mm")))
sketch2.addConstraint(Sketcher.Constraint("Distance", 52, Q("3.122254 mm")))
pocket1 = body.newObject("PartDesign::Pocket", "Pocket")
pocket1.Profile = sketch2
pocket1.setExpression("Length", "Params.pocket1_length")
pocket1.Reversed = True

doc.recompute()
